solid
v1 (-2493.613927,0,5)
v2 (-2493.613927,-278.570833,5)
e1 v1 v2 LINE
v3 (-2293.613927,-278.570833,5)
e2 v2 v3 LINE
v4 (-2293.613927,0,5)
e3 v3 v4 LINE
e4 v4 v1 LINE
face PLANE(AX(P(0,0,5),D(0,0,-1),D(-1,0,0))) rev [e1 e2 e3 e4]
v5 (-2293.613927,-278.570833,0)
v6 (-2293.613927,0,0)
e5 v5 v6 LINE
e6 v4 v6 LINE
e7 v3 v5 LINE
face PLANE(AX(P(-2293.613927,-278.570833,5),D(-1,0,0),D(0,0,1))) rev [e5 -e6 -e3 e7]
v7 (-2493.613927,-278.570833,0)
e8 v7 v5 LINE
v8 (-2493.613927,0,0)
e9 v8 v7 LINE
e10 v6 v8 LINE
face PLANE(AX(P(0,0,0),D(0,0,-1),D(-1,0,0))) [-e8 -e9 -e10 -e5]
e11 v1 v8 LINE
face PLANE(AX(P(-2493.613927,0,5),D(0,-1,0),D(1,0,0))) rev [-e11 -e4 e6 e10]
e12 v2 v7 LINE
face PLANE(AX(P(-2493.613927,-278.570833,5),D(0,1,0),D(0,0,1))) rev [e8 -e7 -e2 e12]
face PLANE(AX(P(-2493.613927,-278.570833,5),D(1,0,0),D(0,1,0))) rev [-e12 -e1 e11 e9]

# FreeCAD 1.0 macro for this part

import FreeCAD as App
import Part
import Sketcher

V = App.Vector
Q = App.Units.Quantity

doc = App.newDocument("Part")
body = doc.addObject("PartDesign::Body", "Body")

sketch1 = doc.addObject("Sketcher::SketchObject", "Sketch")
body.addObject(sketch1)
sketch1.AttachmentSupport = (doc.XY_Plane, [""])
sketch1.MapMode = "FlatFace"
sketch1.addGeometry([
    Part.LineSegment(V(-2494, 0, 0), V(-2494, -279, 0)),
    Part.LineSegment(V(-2494, -279, 0), V(-2294, -279, 0)),
    Part.LineSegment(V(-2294, -279, 0), V(-2294, 0, 0)),
    Part.LineSegment(V(-2294, 0, 0), V(-2494, 0, 0)),
], False)
sketch1.addConstraint([
    Sketcher.Constraint("Coincident", 0, 2, 1, 1),
    Sketcher.Constraint("Coincident", 1, 2, 2, 1),
    Sketcher.Constraint("Coincident", 2, 2, 3, 1),
    Sketcher.Constraint("Coincident", 3, 2, 0, 1),
    Sketcher.Constraint("Vertical", 0),
    Sketcher.Constraint("Horizontal", 1),
    Sketcher.Constraint("Vertical", 2),
    Sketcher.Constraint("Horizontal", 3),
    Sketcher.Constraint("PointOnObject", 2, 2, -1),
    Sketcher.Constraint("DistanceX", 1, 1, 1, 2, Q("200 mm")),
    Sketcher.Constraint("DistanceY", 0, 2, 0, 1, Q("278.570833 mm")),
    Sketcher.Constraint("DistanceX", 0, 2, -1, 1, Q("2493.613927 mm")),
])
pad1 = doc.addObject("PartDesign::Pad", "Pad")
body.addObject(pad1)
pad1.Profile = sketch1
pad1.Length = 5

doc.recompute()
